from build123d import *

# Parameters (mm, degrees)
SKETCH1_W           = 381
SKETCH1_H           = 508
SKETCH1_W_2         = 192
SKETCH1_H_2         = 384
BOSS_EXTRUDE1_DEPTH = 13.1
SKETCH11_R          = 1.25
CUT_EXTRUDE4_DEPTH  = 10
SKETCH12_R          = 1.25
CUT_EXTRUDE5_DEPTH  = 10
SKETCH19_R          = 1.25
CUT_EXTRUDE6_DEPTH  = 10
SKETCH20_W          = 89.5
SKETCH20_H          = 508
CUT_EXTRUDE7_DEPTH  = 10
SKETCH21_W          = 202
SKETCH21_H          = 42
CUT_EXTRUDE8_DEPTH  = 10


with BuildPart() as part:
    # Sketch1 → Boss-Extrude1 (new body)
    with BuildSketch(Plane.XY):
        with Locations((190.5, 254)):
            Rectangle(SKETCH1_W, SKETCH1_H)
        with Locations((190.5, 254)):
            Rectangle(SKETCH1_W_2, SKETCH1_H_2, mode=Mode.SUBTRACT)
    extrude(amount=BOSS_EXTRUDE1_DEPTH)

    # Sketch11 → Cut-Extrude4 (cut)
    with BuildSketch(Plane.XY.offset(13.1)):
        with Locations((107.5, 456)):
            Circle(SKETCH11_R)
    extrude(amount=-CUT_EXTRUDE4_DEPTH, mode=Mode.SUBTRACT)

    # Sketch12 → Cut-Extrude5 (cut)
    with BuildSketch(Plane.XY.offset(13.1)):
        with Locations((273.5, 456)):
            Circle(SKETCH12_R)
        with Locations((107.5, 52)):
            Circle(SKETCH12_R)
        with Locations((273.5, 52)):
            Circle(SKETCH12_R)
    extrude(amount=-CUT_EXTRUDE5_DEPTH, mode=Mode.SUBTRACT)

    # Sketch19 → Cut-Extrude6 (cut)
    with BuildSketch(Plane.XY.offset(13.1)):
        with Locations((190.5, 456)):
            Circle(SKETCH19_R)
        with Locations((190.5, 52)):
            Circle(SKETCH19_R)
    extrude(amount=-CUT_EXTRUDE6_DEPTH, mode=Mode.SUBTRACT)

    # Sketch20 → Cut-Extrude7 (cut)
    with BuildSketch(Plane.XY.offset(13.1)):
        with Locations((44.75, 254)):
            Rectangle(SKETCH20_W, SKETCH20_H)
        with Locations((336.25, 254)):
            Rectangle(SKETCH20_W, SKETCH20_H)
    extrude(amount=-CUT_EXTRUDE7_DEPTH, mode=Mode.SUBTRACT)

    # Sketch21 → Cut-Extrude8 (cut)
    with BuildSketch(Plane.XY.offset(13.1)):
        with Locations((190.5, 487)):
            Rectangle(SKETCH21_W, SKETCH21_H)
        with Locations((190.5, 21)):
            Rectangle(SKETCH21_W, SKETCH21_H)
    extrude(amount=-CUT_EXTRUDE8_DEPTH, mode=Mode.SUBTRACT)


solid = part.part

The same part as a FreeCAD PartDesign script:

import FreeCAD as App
import Part
import Sketcher
from FreeCAD import Vector
Q = App.Units.Quantity


def add_polygon(sketch, points):
    """Adds a closed chain of lines whose ends are joined by coincident constraints."""
    first, n = sketch.GeometryCount, len(points)
    for a, b in zip(points, points[1:] + points[:1]):
        sketch.addGeometry(Part.LineSegment(App.Vector(*a, 0), App.Vector(*b, 0)), False)
    for i in range(n):
        sketch.addConstraint(Sketcher.Constraint("Coincident", first + i, 2, first + (i + 1) % n, 1))

doc = App.newDocument("Part")
body = doc.addObject("PartDesign::Body", "Body")

sketch1 = body.newObject("Sketcher::SketchObject", "Sketch")
sketch1.AttachmentSupport = (doc.getObject("XY_Plane"), [""])
sketch1.MapMode = "FlatFace"
add_polygon(sketch1, [(0, 508), (0, 0), (381, 0), (381, 508)])
add_polygon(sketch1, [(286.5, 62), (94.5, 62), (94.5, 446), (286.5, 446)])
sketch1.addConstraint([
    Sketcher.Constraint("Vertical", 0),
    Sketcher.Constraint("Horizontal", 1),
    Sketcher.Constraint("Vertical", 2),
    Sketcher.Constraint("Horizontal", 3),
    Sketcher.Constraint("Horizontal", 4),
    Sketcher.Constraint("Vertical", 5),
    Sketcher.Constraint("Horizontal", 6),
    Sketcher.Constraint("Vertical", 7),
    Sketcher.Constraint("Coincident", 0, 2, -1, 1),
    Sketcher.Constraint("DistanceX", 1, 1, 1, 2, Q("381 mm")),
    Sketcher.Constraint("DistanceX", 4, 2, 4, 1, Q("192 mm")),
    Sketcher.Constraint("DistanceY", 0, 2, 0, 1, Q("508 mm")),
    Sketcher.Constraint("DistanceY", 5, 1, 5, 2, Q("384 mm")),
    Sketcher.Constraint("DistanceY", -1, 1, 4, 2, Q("62 mm")),
    Sketcher.Constraint("DistanceX", -1, 1, 4, 2, Q("94.5 mm")),
])
pad1 = body.newObject("PartDesign::Pad", "Pad")
pad1.Profile = sketch1
pad1.Length = 13.1

sketch2 = body.newObject("Sketcher::SketchObject", "Sketch001")
sketch2.AttachmentSupport = (doc.getObject("XY_Plane"), [""])
sketch2.MapMode = "FlatFace"
sketch2.AttachmentOffset = App.Placement(Vector(0, 0, 13.1), App.Rotation())
sketch2.addGeometry(Part.Circle(Vector(107.5, 456, 0), Vector(0, 0, 1), 1.25), False)
sketch2.addConstraint([
    Sketcher.Constraint("Diameter", 0, Q("2.5 mm")),
    Sketcher.Constraint("DistanceY", -1, 1, 0, 3, Q("456 mm")),
    Sketcher.Constraint("DistanceX", -1, 1, 0, 3, Q("107.5 mm")),
])
pocket1 = body.newObject("PartDesign::Pocket", "Pocket")
pocket1.Profile = sketch2
pocket1.Length = 10

sketch3 = body.newObject("Sketcher::SketchObject", "Sketch002")
sketch3.AttachmentSupport = (doc.getObject("XY_Plane"), [""])
sketch3.MapMode = "FlatFace"
sketch3.AttachmentOffset = App.Placement(Vector(0, 0, 13.1), App.Rotation())
sketch3.addGeometry([
    Part.Circle(Vector(273.5, 456, 0), Vector(0, 0, 1), 1.25),
    Part.Circle(Vector(107.5, 52, 0), Vector(0, 0, 1), 1.25),
    Part.Circle(Vector(273.5, 52, 0), Vector(0, 0, 1), 1.25),
], False)
sketch3.addConstraint([
    Sketcher.Constraint("Equal", 0, 1),
    Sketcher.Constraint("Equal", 1, 2),
    Sketcher.Constraint("Horizontal", 1, 3, 2, 3),
    Sketcher.Constraint("Vertical", 0, 3, 2, 3),
    Sketcher.Constraint("Diameter", 0, Q("2.5 mm")),
    Sketcher.Constraint("DistanceY", -1, 1, 0, 3, Q("456 mm")),
    Sketcher.Constraint("DistanceY", -1, 1, 1, 3, Q("52 mm")),
    Sketcher.Constraint("DistanceX", 1, 3, 0, 3, Q("166 mm")),
    Sketcher.Constraint("DistanceX", -1, 1, 0, 3, Q("273.5 mm")),
])
pocket2 = body.newObject("PartDesign::Pocket", "Pocket001")
pocket2.Profile = sketch3
pocket2.Length = 10

sketch4 = body.newObject("Sketcher::SketchObject", "Sketch003")
sketch4.AttachmentSupport = (doc.getObject("XY_Plane"), [""])
sketch4.MapMode = "FlatFace"
sketch4.AttachmentOffset = App.Placement(Vector(0, 0, 13.1), App.Rotation())
sketch4.addGeometry([
    Part.Circle(Vector(190.5, 456, 0), Vector(0, 0, 1), 1.25),
    Part.Circle(Vector(190.5, 52, 0), Vector(0, 0, 1), 1.25),
], False)
sketch4.addConstraint([
    Sketcher.Constraint("Equal", 0, 1),
    Sketcher.Constraint("Vertical", 0, 3, 1, 3),
    Sketcher.Constraint("Diameter", 0, Q("2.5 mm")),
    Sketcher.Constraint("DistanceY", -1, 1, 0, 3, Q("456 mm")),
    Sketcher.Constraint("DistanceY", -1, 1, 1, 3, Q("52 mm")),
    Sketcher.Constraint("DistanceX", -1, 1, 0, 3, Q("190.5 mm")),
])
pocket3 = body.newObject("PartDesign::Pocket", "Pocket002")
pocket3.Profile = sketch4
pocket3.Length = 10

sketch5 = body.newObject("Sketcher::SketchObject", "Sketch004")
sketch5.AttachmentSupport = (doc.getObject("XY_Plane"), [""])
sketch5.MapMode = "FlatFace"
sketch5.AttachmentOffset = App.Placement(Vector(0, 0, 13.1), App.Rotation())
add_polygon(sketch5, [(0, 508), (0, 0), (89.5, 0), (89.5, 508)])
add_polygon(sketch5, [(291.5, 508), (291.5, 0), (381, 0), (381, 508)])
sketch5.addConstraint([
    Sketcher.Constraint("Vertical", 0),
    Sketcher.Constraint("Horizontal", 1),
    Sketcher.Constraint("Vertical", 2),
    Sketcher.Constraint("Horizontal", 3),
    Sketcher.Constraint("Vertical", 4),
    Sketcher.Constraint("Horizontal", 5),
    Sketcher.Constraint("Vertical", 6),
    Sketcher.Constraint("Horizontal", 7),
    Sketcher.Constraint("Coincident", 0, 2, -1, 1),
    Sketcher.Constraint("PointOnObject", 4, 2, -1),
    Sketcher.Constraint("Horizontal", 3, 2, 6, 2),
    Sketcher.Constraint("Equal", 3, 5),
    Sketcher.Constraint("DistanceY", 0, 2, 0, 1, Q("508 mm")),
    Sketcher.Constraint("DistanceX", 1, 1, 1, 2, Q("89.5 mm")),
    Sketcher.Constraint("DistanceX", -1, 1, 5, 2, Q("381 mm")),
])
pocket4 = body.newObject("PartDesign::Pocket", "Pocket003")
pocket4.Profile = sketch5
pocket4.Length = 10

sketch6 = body.newObject("Sketcher::SketchObject", "Sketch005")
sketch6.AttachmentSupport = (doc.getObject("XY_Plane"), [""])
sketch6.MapMode = "FlatFace"
sketch6.AttachmentOffset = App.Placement(Vector(0, 0, 13.1), App.Rotation())
add_polygon(sketch6, [(89.5, 508), (89.5, 466), (291.5, 466), (291.5, 508)])
add_polygon(sketch6, [(89.5, 42), (89.5, 0), (291.5, 0), (291.5, 42)])
sketch6.addConstraint([
    Sketcher.Constraint("Vertical", 0),
    Sketcher.Constraint("Horizontal", 1),
    Sketcher.Constraint("Vertical", 2),
    Sketcher.Constraint("Horizontal", 3),
    Sketcher.Constraint("Vertical", 4),
    Sketcher.Constraint("Horizontal", 5),
    Sketcher.Constraint("Vertical", 6),
    Sketcher.Constraint("Horizontal", 7),
    Sketcher.Constraint("PointOnObject", 4, 2, -1),
    Sketcher.Constraint("Vertical", 3, 2, 4, 2),
    Sketcher.Constraint("Vertical", 2, 2, 5, 2),
    Sketcher.Constraint("Equal", 2, 4),
    Sketcher.Constraint("DistanceX", 1, 1, 1, 2, Q("202 mm")),
    Sketcher.Constraint("DistanceY", 0, 2, 0, 1, Q("42 mm")),
    Sketcher.Constraint("DistanceY", -1, 1, 0, 2, Q("466 mm")),
    Sketcher.Constraint("DistanceX", -1, 1, 0, 2, Q("89.5 mm")),
])
pocket5 = body.newObject("PartDesign::Pocket", "Pocket004")
pocket5.Profile = sketch6
pocket5.Length = 10

doc.recompute()
